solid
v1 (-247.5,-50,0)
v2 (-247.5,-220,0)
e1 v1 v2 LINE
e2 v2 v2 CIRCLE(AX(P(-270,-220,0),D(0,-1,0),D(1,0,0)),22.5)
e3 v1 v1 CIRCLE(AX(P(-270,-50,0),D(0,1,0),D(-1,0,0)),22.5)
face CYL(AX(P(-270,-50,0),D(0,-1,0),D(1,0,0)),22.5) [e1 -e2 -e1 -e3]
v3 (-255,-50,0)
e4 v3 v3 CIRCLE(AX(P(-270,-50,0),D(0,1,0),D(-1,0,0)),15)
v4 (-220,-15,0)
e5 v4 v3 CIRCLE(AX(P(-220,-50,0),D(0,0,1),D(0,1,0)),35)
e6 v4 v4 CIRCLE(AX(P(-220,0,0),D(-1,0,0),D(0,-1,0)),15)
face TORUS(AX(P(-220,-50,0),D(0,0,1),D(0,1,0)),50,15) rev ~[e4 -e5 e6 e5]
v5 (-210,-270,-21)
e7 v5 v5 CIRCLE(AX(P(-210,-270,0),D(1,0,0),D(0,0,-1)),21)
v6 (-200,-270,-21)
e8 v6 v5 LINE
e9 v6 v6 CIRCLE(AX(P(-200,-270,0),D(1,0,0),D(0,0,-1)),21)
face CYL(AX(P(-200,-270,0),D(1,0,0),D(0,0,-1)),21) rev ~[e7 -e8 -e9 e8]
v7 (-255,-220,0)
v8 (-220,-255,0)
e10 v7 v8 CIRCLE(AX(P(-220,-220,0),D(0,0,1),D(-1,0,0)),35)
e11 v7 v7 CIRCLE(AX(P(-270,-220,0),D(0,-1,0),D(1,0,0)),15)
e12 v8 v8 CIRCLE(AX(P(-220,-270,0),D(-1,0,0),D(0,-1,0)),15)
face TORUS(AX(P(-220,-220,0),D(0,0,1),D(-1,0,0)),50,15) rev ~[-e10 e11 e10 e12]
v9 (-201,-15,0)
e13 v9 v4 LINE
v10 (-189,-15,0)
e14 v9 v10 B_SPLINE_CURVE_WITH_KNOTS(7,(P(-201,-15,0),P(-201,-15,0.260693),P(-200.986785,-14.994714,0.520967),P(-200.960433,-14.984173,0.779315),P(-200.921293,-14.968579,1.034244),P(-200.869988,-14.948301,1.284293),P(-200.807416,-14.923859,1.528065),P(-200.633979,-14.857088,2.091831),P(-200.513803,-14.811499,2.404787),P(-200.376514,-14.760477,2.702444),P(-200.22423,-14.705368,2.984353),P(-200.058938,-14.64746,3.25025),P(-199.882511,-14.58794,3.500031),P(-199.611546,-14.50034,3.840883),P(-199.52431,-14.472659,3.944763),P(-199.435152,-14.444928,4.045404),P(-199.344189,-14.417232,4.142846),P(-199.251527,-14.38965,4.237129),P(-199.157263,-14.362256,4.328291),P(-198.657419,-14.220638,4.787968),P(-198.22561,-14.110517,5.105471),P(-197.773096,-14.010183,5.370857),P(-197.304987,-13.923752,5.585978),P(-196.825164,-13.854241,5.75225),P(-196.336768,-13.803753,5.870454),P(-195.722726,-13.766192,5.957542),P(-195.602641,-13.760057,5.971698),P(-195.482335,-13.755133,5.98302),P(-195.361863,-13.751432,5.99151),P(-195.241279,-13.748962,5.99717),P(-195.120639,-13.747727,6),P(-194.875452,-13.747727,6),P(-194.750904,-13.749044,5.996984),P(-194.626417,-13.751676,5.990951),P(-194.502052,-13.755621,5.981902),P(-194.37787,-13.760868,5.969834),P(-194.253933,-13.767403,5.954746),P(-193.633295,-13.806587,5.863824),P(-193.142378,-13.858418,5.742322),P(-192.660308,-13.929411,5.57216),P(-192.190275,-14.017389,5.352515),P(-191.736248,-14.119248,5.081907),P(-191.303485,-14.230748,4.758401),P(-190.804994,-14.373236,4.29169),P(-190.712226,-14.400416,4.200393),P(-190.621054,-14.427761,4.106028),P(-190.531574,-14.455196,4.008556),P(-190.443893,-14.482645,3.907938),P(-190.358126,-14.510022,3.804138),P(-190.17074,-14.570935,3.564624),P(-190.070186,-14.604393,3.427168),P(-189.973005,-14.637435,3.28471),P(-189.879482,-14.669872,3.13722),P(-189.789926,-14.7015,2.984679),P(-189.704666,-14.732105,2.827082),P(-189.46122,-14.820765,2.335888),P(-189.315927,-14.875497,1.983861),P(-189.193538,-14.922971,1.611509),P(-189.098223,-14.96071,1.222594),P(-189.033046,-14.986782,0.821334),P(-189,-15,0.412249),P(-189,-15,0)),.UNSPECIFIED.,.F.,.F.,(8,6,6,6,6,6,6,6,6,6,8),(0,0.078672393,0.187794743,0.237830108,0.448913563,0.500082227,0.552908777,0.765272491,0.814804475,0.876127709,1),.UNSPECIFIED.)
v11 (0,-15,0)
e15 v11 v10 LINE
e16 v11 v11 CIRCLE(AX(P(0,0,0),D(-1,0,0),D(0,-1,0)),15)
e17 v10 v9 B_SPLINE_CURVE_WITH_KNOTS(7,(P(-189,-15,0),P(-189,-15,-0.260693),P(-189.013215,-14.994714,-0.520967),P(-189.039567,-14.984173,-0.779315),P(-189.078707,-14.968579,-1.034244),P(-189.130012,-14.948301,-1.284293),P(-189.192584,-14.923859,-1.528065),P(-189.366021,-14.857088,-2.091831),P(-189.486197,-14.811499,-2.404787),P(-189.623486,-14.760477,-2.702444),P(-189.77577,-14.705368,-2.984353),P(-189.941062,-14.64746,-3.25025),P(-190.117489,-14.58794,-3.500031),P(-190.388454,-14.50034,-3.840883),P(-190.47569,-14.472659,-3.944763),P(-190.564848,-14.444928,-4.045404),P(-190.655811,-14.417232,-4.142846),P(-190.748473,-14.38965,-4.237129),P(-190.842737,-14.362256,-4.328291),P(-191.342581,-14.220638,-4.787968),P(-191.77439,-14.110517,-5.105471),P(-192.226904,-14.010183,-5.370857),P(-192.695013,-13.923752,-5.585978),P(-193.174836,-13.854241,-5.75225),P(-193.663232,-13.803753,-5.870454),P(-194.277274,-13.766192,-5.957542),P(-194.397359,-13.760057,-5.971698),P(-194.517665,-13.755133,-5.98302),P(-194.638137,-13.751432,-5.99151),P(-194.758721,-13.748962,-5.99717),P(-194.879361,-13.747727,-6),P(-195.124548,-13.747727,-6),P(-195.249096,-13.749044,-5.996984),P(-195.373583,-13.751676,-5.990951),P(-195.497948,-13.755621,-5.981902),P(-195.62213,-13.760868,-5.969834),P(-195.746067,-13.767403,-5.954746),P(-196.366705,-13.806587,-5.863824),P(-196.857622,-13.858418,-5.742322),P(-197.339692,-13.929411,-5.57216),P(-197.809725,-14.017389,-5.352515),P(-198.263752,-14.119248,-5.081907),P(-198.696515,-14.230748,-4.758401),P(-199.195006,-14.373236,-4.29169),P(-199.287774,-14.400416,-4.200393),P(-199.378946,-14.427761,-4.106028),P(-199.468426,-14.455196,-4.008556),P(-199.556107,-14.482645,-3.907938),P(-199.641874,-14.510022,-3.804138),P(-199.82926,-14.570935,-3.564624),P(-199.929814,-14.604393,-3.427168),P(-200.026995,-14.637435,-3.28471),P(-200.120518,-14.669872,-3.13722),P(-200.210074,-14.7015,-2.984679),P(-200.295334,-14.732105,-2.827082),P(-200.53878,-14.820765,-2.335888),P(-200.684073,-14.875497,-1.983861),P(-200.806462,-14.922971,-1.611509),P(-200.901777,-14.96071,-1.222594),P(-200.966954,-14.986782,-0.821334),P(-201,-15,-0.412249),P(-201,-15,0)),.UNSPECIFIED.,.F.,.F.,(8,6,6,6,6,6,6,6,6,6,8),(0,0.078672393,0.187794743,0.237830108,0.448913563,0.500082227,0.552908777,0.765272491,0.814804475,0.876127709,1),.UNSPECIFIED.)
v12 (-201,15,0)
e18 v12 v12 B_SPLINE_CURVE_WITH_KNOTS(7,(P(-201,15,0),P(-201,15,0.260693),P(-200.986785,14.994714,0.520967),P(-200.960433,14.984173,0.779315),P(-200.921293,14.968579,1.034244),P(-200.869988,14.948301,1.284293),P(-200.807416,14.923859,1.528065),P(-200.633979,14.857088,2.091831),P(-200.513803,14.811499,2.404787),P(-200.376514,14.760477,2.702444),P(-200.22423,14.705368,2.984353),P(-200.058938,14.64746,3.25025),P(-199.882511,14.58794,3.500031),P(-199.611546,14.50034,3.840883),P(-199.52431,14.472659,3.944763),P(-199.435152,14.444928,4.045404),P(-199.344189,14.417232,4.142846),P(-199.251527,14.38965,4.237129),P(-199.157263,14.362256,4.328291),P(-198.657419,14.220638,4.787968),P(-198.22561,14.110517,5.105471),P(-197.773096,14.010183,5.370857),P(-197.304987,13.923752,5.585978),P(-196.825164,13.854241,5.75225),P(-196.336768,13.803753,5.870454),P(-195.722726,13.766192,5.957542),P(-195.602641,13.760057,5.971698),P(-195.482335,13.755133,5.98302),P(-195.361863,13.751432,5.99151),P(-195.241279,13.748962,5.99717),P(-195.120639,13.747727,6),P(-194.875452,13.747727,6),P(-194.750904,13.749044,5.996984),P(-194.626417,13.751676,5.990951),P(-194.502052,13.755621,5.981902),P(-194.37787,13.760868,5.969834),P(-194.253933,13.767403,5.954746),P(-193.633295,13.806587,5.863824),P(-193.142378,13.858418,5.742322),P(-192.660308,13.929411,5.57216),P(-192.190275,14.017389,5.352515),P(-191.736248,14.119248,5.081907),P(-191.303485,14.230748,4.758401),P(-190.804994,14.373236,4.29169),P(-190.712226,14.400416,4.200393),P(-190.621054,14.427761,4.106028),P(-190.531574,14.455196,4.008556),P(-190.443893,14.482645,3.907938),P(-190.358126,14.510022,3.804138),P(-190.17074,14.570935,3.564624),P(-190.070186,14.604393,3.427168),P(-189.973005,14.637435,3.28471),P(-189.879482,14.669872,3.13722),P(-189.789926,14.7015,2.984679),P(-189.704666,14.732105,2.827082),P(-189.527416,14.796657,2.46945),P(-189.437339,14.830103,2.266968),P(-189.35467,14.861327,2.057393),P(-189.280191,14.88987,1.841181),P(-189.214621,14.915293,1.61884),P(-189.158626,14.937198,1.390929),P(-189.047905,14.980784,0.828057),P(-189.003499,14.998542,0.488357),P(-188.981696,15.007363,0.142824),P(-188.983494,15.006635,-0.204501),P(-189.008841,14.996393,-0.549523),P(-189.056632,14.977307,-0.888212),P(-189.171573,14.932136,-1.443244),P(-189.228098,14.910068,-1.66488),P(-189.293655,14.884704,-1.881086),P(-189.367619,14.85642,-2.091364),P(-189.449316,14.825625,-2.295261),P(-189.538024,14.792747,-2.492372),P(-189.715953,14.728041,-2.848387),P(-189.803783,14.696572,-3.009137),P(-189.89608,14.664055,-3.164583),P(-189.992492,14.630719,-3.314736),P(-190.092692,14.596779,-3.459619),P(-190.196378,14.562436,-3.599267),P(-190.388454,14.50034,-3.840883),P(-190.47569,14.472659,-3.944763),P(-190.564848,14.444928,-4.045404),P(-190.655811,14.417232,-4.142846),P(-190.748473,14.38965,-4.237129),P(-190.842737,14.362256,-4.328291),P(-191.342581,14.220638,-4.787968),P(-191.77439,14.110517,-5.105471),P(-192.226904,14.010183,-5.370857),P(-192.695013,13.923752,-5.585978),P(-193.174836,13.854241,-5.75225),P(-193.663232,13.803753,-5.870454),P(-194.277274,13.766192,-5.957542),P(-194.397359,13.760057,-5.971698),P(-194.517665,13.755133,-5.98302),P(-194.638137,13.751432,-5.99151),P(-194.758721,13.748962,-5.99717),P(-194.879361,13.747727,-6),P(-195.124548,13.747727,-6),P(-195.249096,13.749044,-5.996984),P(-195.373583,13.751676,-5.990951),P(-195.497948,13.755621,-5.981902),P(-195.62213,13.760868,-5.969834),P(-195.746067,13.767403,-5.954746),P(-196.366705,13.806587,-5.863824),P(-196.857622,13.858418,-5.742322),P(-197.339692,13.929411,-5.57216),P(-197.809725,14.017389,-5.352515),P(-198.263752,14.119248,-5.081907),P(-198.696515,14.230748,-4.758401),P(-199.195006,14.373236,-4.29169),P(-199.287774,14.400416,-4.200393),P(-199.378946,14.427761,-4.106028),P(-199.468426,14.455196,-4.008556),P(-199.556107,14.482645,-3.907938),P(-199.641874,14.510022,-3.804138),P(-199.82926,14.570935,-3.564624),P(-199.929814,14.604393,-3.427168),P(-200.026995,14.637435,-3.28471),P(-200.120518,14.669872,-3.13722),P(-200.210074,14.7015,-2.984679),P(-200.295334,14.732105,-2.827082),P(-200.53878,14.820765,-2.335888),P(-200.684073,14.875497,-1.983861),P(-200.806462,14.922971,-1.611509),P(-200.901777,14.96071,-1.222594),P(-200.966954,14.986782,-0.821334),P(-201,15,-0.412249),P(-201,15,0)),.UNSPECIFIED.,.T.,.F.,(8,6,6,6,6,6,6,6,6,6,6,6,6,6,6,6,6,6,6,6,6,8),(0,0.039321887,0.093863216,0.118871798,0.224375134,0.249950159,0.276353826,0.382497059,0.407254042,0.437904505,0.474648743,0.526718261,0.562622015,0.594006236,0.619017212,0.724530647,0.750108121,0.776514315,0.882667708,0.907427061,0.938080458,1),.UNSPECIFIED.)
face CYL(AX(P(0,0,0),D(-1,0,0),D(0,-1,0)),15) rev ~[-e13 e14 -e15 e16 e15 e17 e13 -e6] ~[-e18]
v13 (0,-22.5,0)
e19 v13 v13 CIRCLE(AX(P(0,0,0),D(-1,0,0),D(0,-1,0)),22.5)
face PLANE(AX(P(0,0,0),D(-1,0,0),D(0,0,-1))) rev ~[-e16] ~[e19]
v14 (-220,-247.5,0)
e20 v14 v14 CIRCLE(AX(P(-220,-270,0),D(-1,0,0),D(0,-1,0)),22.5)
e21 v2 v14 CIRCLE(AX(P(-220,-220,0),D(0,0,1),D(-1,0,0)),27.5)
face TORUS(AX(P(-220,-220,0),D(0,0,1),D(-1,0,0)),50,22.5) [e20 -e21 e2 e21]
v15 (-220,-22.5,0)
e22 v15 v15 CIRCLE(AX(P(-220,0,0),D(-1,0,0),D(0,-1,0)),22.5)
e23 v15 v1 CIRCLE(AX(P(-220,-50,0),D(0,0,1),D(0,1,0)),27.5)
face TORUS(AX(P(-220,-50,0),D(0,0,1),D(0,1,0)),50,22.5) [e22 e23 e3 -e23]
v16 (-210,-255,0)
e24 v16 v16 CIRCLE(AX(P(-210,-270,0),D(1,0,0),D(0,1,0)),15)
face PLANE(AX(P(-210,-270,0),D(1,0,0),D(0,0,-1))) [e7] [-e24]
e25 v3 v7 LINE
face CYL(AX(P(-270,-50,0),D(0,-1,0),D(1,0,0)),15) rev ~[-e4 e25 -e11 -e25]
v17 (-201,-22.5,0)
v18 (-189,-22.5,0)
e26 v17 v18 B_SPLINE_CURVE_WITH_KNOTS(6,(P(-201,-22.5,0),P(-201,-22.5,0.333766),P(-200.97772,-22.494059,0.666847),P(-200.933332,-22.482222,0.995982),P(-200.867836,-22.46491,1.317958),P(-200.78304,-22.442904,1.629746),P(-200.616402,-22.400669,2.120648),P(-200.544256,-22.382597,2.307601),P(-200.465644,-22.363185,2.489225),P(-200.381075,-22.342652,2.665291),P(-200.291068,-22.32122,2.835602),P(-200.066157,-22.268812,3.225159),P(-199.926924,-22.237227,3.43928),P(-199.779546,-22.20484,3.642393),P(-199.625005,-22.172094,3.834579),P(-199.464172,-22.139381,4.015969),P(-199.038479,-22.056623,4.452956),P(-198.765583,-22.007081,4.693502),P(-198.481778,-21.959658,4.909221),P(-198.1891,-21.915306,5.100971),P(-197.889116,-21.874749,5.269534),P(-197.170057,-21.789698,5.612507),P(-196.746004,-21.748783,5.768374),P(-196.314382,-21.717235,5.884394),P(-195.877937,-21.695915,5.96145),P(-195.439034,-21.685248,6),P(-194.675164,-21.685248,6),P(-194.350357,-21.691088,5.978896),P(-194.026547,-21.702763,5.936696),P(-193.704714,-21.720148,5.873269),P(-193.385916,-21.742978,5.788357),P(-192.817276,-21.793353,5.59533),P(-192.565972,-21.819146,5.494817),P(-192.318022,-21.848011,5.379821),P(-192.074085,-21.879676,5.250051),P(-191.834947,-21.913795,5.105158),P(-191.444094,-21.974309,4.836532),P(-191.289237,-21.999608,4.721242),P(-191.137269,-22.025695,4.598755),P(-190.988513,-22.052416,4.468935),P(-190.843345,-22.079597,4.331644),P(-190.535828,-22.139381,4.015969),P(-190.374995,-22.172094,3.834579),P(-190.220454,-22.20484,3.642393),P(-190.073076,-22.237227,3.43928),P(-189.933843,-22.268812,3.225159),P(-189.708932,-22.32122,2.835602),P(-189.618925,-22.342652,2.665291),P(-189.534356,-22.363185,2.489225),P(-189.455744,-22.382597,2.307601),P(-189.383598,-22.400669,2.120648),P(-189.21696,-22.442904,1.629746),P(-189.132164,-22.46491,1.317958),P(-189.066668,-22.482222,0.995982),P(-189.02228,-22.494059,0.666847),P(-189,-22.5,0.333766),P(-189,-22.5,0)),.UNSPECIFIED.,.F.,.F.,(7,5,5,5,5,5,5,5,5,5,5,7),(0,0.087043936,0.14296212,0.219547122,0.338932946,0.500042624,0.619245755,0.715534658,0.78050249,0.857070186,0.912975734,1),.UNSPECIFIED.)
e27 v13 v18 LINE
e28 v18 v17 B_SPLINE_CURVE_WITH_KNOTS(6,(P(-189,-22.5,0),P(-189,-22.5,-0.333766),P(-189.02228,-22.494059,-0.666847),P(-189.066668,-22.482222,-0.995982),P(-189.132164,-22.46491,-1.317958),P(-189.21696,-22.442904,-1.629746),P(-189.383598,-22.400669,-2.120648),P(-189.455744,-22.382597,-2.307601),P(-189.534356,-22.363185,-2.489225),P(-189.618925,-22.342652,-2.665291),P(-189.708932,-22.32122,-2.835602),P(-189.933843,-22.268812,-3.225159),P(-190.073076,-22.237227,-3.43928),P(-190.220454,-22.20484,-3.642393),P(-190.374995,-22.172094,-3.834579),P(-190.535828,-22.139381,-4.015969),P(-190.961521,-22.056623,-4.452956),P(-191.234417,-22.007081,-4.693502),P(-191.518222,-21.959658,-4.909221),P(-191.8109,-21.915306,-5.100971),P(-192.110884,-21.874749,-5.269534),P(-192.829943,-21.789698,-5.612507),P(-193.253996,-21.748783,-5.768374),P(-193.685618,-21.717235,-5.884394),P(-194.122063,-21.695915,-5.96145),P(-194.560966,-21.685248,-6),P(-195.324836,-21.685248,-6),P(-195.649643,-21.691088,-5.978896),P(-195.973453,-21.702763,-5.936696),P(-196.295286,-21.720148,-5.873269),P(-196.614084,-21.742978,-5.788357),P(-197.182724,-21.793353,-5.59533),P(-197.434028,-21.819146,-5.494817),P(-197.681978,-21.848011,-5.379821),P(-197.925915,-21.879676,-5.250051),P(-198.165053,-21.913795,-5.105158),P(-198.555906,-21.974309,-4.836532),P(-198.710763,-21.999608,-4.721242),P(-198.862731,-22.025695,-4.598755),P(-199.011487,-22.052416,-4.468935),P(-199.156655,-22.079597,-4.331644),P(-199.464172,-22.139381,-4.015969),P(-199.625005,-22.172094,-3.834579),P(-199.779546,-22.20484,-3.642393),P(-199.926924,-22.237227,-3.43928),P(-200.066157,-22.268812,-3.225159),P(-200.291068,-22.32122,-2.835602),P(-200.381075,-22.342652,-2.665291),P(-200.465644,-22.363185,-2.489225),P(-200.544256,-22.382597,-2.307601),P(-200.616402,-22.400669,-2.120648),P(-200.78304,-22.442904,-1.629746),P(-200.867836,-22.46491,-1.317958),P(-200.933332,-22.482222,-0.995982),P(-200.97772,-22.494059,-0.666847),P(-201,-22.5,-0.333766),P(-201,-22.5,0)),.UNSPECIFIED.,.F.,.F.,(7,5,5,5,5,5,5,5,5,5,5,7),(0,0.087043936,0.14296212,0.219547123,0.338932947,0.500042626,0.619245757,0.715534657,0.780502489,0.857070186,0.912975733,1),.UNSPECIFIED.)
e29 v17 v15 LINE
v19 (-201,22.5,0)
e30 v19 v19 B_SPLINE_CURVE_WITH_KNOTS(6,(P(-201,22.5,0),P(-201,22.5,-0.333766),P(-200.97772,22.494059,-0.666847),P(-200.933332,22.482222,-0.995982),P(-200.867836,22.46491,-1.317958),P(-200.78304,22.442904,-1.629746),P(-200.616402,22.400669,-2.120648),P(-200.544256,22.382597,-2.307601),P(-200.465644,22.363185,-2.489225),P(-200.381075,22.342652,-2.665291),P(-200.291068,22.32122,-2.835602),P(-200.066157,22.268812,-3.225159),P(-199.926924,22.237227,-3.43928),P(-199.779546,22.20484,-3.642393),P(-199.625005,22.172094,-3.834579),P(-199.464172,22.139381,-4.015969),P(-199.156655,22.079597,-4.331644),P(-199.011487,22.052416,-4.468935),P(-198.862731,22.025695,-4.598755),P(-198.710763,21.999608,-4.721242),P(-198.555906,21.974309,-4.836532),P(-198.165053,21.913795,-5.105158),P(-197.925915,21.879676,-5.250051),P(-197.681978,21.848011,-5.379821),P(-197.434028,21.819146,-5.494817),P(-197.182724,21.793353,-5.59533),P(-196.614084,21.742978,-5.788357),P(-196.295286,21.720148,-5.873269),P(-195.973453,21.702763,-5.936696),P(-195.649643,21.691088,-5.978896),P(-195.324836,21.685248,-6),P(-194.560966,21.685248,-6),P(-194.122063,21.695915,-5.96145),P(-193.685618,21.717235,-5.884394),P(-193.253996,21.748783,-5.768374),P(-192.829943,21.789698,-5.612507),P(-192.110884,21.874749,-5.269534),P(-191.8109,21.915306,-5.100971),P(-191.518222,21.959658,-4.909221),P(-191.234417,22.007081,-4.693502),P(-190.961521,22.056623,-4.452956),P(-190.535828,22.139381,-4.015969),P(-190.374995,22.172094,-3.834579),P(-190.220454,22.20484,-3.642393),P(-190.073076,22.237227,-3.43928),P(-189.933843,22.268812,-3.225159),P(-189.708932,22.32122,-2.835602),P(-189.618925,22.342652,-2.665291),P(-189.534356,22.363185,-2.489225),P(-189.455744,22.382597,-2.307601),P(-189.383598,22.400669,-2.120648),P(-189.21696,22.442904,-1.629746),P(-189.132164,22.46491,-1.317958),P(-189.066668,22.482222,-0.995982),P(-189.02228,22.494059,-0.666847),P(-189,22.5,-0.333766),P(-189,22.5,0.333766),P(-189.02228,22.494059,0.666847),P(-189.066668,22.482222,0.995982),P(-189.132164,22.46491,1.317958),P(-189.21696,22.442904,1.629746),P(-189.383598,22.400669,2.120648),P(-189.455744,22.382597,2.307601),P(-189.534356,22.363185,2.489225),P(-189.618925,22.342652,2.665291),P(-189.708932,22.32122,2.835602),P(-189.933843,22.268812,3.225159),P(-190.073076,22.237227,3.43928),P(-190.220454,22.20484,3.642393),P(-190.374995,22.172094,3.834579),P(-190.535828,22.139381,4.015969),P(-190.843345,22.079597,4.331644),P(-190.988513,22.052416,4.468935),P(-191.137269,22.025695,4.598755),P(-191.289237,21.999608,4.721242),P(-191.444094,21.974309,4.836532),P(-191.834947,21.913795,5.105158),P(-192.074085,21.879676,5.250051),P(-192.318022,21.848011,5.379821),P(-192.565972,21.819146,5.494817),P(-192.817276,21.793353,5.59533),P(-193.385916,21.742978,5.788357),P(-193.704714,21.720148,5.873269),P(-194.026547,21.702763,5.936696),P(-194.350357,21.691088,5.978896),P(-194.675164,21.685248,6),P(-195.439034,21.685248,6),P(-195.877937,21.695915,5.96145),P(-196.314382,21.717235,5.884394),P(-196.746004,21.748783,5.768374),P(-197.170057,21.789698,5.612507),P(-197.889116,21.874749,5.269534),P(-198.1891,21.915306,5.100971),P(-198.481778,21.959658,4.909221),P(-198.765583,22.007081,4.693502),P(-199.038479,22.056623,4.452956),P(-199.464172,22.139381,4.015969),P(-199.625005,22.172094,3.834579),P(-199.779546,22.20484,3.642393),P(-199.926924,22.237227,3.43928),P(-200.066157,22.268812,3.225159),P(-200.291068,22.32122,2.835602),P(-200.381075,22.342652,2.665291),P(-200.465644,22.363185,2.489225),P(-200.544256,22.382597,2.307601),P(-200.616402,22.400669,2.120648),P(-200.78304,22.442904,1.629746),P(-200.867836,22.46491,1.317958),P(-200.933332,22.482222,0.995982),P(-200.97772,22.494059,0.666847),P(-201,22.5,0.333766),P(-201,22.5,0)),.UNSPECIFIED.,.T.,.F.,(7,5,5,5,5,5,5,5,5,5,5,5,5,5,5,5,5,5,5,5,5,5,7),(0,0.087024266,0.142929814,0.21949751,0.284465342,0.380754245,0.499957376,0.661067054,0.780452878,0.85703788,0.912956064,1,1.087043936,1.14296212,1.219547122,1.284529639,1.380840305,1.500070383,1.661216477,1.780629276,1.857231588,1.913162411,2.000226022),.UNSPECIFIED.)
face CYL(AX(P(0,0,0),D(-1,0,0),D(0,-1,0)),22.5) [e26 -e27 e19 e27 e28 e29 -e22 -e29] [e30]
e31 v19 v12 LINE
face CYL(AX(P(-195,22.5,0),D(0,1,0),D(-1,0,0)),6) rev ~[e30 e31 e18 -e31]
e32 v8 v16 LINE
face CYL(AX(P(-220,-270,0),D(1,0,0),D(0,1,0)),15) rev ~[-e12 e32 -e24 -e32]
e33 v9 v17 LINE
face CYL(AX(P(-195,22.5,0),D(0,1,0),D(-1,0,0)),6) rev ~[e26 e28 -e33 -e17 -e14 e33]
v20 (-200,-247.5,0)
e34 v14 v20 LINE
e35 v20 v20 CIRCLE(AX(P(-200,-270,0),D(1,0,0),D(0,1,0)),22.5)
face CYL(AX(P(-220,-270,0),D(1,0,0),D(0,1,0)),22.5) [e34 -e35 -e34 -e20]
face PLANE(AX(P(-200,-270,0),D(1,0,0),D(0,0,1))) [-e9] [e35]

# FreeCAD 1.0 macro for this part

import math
import FreeCAD as App
import Part
import Sketcher

doc = App.newDocument("Part")
body = doc.addObject("PartDesign::Body", "Body")

sketch1 = doc.addObject("Sketcher::SketchObject", "Sketch")
body.addObject(sketch1)
sketch1.AttachmentSupport = (doc.YZ_Plane, [""])
sketch1.MapMode = "FlatFace"
sketch1.addGeometry([
    Part.Circle(App.Vector(0, 0, 0), App.Vector(0, 0, 1), 22),
    Part.Circle(App.Vector(0, 0, 0), App.Vector(0, 0, 1), 15),
], False)
sketch1.addConstraint([
    Sketcher.Constraint("Coincident", 0, 3, -1, 1),
    Sketcher.Constraint("Coincident", 1, 3, -1, 1),
    Sketcher.Constraint("Diameter", 0, 45.0),
    Sketcher.Constraint("Diameter", 1, 30.0),
])

sketch2 = doc.addObject("Sketcher::SketchObject", "Sketch001")
body.addObject(sketch2)
sketch2.AttachmentSupport = (doc.XY_Plane, [""])
sketch2.MapMode = "FlatFace"
sketch2.addGeometry([
    Part.LineSegment(App.Vector(0, 0, 0), App.Vector(-220, 0, 0)),
    Part.ArcOfCircle(Part.Circle(App.Vector(-220, -50, 0), App.Vector(0, 0, 1), 50), math.radians(90), math.radians(180)),
    Part.LineSegment(App.Vector(-270, -50, 0), App.Vector(-270, -220, 0)),
    Part.ArcOfCircle(Part.Circle(App.Vector(-220, -220, 0), App.Vector(0, 0, 1), 50), math.radians(-180), math.radians(-90)),
    Part.LineSegment(App.Vector(-220, -270, 0), App.Vector(-200, -270, 0)),
], False)
sketch2.addConstraint([
    Sketcher.Constraint("Tangent", 0, 2, 1, 1),
    Sketcher.Constraint("Tangent", 1, 2, 2, 1),
    Sketcher.Constraint("Tangent", 2, 2, 3, 1),
    Sketcher.Constraint("Tangent", 3, 2, 4, 1),
    Sketcher.Constraint("Horizontal", 0),
    Sketcher.Constraint("Vertical", 2),
    Sketcher.Constraint("Horizontal", 4),
    Sketcher.Constraint("Coincident", 0, 1, -1, 1),
    Sketcher.Constraint("Equal", 1, 3),
    Sketcher.Constraint("Radius", 1, 50.0),
    Sketcher.Constraint("DistanceX", 0, 2, 0, 1, 220.0),
    Sketcher.Constraint("DistanceX", 4, 1, 4, 2, 20.0),
    Sketcher.Constraint("DistanceY", 2, 2, 2, 1, 170.0),
])
doc.recompute()

additivepipe = doc.addObject("PartDesign::AdditivePipe", "AdditivePipe")
body.addObject(additivepipe)
additivepipe.Profile = sketch1
additivepipe.Spine = (sketch2, ["Edge1", "Edge2", "Edge3", "Edge4", "Edge5"])

sketch3 = doc.addObject("Sketcher::SketchObject", "Sketch002")
body.addObject(sketch3)
sketch3.AttachmentSupport = (doc.YZ_Plane, [""])
sketch3.MapMode = "FlatFace"
sketch3.AttachmentOffset = App.Placement(App.Vector(0, 0, -200), App.Rotation())
sketch3.addGeometry(Part.Circle(App.Vector(-270, 0, 0), App.Vector(0, 0, 1), 21), False)
sketch3.addConstraint([
    Sketcher.Constraint("PointOnObject", 0, 3, -1),
    Sketcher.Constraint("Diameter", 0, 42.0),
    Sketcher.Constraint("DistanceX", 0, 3, -1, 1, 270.0),
])
pocket1 = doc.addObject("PartDesign::Pocket", "Pocket")
body.addObject(pocket1)
pocket1.Profile = sketch3
pocket1.Length = 10

sketch4 = doc.addObject("Sketcher::SketchObject", "Sketch003")
body.addObject(sketch4)
sketch4.AttachmentSupport = (doc.XZ_Plane, [""])
sketch4.MapMode = "FlatFace"
sketch4.AttachmentOffset = App.Placement(App.Vector(0, 0, -22.5), App.Rotation())
sketch4.addGeometry(Part.Circle(App.Vector(-195, 0, 0), App.Vector(0, 0, 1), 6), False)
sketch4.addConstraint([
    Sketcher.Constraint("PointOnObject", 0, 3, -1),
    Sketcher.Constraint("Diameter", 0, 12.0),
    Sketcher.Constraint("DistanceX", 0, 3, -1, 1, 195.0),
])
pocket2 = doc.addObject("PartDesign::Pocket", "Pocket001")
body.addObject(pocket2)
pocket2.Profile = sketch4
pocket2.Length = 90
pocket2.Reversed = True

doc.recompute()
